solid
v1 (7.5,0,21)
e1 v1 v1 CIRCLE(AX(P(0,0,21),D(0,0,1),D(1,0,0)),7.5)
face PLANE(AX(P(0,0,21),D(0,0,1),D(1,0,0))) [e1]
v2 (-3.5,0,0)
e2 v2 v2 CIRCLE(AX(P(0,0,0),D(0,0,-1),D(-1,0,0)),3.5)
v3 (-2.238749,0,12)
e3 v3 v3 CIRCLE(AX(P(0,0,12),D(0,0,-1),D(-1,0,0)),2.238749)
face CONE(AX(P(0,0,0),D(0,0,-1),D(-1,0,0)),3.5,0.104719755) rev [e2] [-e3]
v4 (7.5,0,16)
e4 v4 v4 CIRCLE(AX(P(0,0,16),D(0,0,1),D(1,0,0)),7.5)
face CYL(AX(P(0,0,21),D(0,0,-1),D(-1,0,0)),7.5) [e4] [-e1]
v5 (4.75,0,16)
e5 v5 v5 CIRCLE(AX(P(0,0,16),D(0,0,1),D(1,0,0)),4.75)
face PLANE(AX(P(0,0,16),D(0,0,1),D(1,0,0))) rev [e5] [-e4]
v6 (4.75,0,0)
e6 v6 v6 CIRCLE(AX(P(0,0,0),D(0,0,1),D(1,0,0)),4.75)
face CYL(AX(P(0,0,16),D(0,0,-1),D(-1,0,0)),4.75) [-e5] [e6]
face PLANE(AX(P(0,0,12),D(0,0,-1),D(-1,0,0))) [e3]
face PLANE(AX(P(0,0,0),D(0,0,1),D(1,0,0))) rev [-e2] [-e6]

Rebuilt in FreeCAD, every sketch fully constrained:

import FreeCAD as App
import Part
import Sketcher

V = App.Vector
Q = App.Units.Quantity


def faces_at(feature, points):
    """Names of the faces that lie closest to the given points."""
    faces = feature.Shape.Faces
    near = lambda p: min(range(len(faces)), key=lambda i: faces[i].distToShape(Part.Vertex(*p))[0])
    return sorted({f"Face{near(p) + 1}" for p in points})

doc = App.newDocument("Part")
body = doc.addObject("PartDesign::Body", "Body")

# Sketch on XY plane
sketch1 = body.newObject("Sketcher::SketchObject", "Sketch")
sketch1.AttachmentSupport = (doc.getObject("XY_Plane"), [""])
sketch1.MapMode = "FlatFace"
sketch1.addGeometry(Part.Circle(V(0, 0, 0), V(0, 0, 1), 4.8), False)
sketch1.addConstraint(Sketcher.Constraint("Coincident", 0, 3, -1, 1))
sketch1.addConstraint(Sketcher.Constraint("Diameter", 0, Q("9.5 mm")))
pad1 = body.newObject("PartDesign::Pad", "Pad")
pad1.Profile = sketch1
pad1.Length = 16

# Sketch on XY plane
sketch2 = body.newObject("Sketcher::SketchObject", "Sketch001")
sketch2.AttachmentSupport = (doc.getObject("XY_Plane"), [""])
sketch2.MapMode = "FlatFace"
sketch2.AttachmentOffset = App.Placement(V(0, 0, 16), App.Rotation())
sketch2.addGeometry(Part.Circle(V(0, 0, 0), V(0, 0, 1), 8), False)
sketch2.addConstraint(Sketcher.Constraint("Coincident", 0, 3, -1, 1))
sketch2.addConstraint(Sketcher.Constraint("Diameter", 0, Q("15 mm")))
pad2 = body.newObject("PartDesign::Pad", "Pad001")
pad2.Profile = sketch2
pad2.Length = 5
body2 = doc.addObject("PartDesign::Body", "Body001")

# Sketch on XY plane
sketch3 = body2.newObject("Sketcher::SketchObject", "Sketch002")
sketch3.AttachmentSupport = (doc.getObject("XY_Plane001"), [""])
sketch3.MapMode = "FlatFace"
sketch3.addGeometry(Part.Circle(V(0, 0, 0), V(0, 0, 1), 3.5), False)
sketch3.addConstraint(Sketcher.Constraint("Coincident", 0, 3, -1, 1))
sketch3.addConstraint(Sketcher.Constraint("Diameter", 0, Q("7 mm")))
pad3 = body2.newObject("PartDesign::Pad", "Pad002")
pad3.Profile = sketch3
pad3.Length = 12
doc.recompute()

draft = body2.newObject("PartDesign::Draft", "Draft")
draft.Base = (pad3, faces_at(pad3, [(3.5, 0, 6)]))
draft.NeutralPlane = (doc.getObject("XY_Plane001"), [""])
draft.Angle = 6
draft.Reversed = False
doc.recompute()

boolean = body.newObject("PartDesign::Boolean", "Boolean")
boolean.Type = "Cut"
boolean.addObjects([body2])

doc.recompute()
